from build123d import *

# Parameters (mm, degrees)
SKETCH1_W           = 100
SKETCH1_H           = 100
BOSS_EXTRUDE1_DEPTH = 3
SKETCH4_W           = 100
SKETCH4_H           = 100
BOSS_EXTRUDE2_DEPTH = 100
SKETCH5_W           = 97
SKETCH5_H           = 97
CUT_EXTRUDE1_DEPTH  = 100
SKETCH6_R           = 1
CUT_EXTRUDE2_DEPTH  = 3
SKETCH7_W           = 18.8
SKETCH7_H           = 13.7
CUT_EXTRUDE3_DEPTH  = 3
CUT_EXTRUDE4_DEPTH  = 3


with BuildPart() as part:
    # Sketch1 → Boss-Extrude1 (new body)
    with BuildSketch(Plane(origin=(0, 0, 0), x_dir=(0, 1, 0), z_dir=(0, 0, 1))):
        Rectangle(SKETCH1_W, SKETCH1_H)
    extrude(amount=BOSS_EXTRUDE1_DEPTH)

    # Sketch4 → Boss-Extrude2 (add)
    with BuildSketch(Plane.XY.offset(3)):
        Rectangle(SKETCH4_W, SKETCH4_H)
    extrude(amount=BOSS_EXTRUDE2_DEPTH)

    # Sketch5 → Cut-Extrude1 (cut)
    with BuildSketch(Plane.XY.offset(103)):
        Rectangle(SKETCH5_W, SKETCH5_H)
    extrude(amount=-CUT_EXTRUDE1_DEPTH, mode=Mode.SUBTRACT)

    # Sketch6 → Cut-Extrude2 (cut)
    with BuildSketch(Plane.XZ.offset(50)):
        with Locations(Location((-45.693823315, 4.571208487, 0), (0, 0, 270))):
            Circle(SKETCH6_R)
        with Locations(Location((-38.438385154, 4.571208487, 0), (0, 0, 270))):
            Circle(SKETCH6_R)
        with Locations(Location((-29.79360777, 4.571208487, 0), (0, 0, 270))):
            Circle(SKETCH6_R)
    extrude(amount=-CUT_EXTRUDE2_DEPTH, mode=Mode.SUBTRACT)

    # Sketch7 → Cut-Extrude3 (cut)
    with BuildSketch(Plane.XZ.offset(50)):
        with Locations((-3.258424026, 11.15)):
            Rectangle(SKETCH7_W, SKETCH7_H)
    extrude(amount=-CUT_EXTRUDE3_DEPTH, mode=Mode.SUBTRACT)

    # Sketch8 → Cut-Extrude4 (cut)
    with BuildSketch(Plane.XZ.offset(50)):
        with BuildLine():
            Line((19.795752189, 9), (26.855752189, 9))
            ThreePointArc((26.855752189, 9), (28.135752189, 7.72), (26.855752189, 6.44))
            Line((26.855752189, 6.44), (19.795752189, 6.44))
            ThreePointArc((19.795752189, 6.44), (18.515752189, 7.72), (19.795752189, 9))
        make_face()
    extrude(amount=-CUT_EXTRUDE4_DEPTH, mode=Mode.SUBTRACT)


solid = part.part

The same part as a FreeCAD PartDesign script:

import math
import FreeCAD as App
import Part
import Sketcher

V = App.Vector


def add_polygon(sketch, points):
    """Adds a closed chain of lines whose ends are joined by coincident constraints."""
    first, n = sketch.GeometryCount, len(points)
    for a, b in zip(points, points[1:] + points[:1]):
        sketch.addGeometry(Part.LineSegment(App.Vector(*a, 0), App.Vector(*b, 0)), False)
    for i in range(n):
        sketch.addConstraint(Sketcher.Constraint("Coincident", first + i, 2, first + (i + 1) % n, 1))

doc = App.newDocument("Part")
params = doc.addObject("Spreadsheet::Sheet", "Params")
for row, (alias, value) in enumerate([
    ("sketch1_width", "100 mm"),
    ("pad1_length", "3 mm"),
    ("sketch2_width", "100 mm"),
    ("pad2_length", "100 mm"),
    ("sketch3_width", "97 mm"),
    ("pocket1_length", "100 mm"),
    ("sketch4_diameter", "2 mm"),
    ("pocket2_length", "3 mm"),
    ("sketch5_width", "18.8 mm"),
    ("sketch5_height", "13.7 mm"),
    ("pocket3_length", "3 mm"),
    ("sketch6_radius", "1.28 mm"),
    ("sketch6_width", "7.06 mm"),
    ("pocket4_length", "3 mm"),
], start=1):
    params.set(f"A{row}", alias)
    params.set(f"B{row}", "=" + value)
    params.setAlias(f"B{row}", alias)

body = doc.addObject("PartDesign::Body", "Body")

sketch1 = body.newObject("Sketcher::SketchObject", "Sketch")
sketch1.AttachmentSupport = (doc.getObject("XY_Plane"), [""])
sketch1.MapMode = "FlatFace"
add_polygon(sketch1, [(-50, -50), (50, -50), (50, 50), (-50, 50)])
sketch1.addConstraint(Sketcher.Constraint("Horizontal", 0))
sketch1.addConstraint(Sketcher.Constraint("Vertical", 1))
sketch1.addConstraint(Sketcher.Constraint("Horizontal", 2))
sketch1.addConstraint(Sketcher.Constraint("Vertical", 3))
sketch1.addConstraint(Sketcher.Constraint("Symmetric", 0, 2, 2, 2, -1, 1))
sketch1.addConstraint(Sketcher.Constraint("Equal", 2, 1))
sketch1.addConstraint(Sketcher.Constraint("DistanceX", 0, 1, 0, 2, 100.0))
sketch1.setExpression("Constraints[10]", "Params.sketch1_width")
pad1 = body.newObject("PartDesign::Pad", "Pad")
pad1.Profile = sketch1
pad1.setExpression("Length", "Params.pad1_length")

sketch2 = body.newObject("Sketcher::SketchObject", "Sketch001")
sketch2.AttachmentSupport = (doc.getObject("XY_Plane"), [""])
sketch2.MapMode = "FlatFace"
sketch2.AttachmentOffset = App.Placement(V(0, 0, 3), App.Rotation())
add_polygon(sketch2, [(-50, 50), (-50, -50), (50, -50), (50, 50)])
sketch2.addConstraint(Sketcher.Constraint("Vertical", 0))
sketch2.addConstraint(Sketcher.Constraint("Horizontal", 1))
sketch2.addConstraint(Sketcher.Constraint("Vertical", 2))
sketch2.addConstraint(Sketcher.Constraint("Horizontal", 3))
sketch2.addConstraint(Sketcher.Constraint("Symmetric", 0, 2, 2, 2, -1, 1))
sketch2.addConstraint(Sketcher.Constraint("Equal", 3, 0))
sketch2.addConstraint(Sketcher.Constraint("DistanceX", 1, 1, 1, 2, 100.0))
sketch2.setExpression("Constraints[10]", "Params.sketch2_width")
pad2 = body.newObject("PartDesign::Pad", "Pad001")
pad2.Profile = sketch2
pad2.setExpression("Length", "Params.pad2_length")

sketch3 = body.newObject("Sketcher::SketchObject", "Sketch002")
sketch3.AttachmentSupport = (doc.getObject("XY_Plane"), [""])
sketch3.MapMode = "FlatFace"
sketch3.AttachmentOffset = App.Placement(V(0, 0, 103), App.Rotation())
add_polygon(sketch3, [(-48, 48), (-48, -48), (48, -48), (48, 48)])
sketch3.addConstraint(Sketcher.Constraint("Vertical", 0))
sketch3.addConstraint(Sketcher.Constraint("Horizontal", 1))
sketch3.addConstraint(Sketcher.Constraint("Vertical", 2))
sketch3.addConstraint(Sketcher.Constraint("Horizontal", 3))
sketch3.addConstraint(Sketcher.Constraint("Symmetric", 0, 2, 2, 2, -1, 1))
sketch3.addConstraint(Sketcher.Constraint("Equal", 3, 0))
sketch3.addConstraint(Sketcher.Constraint("DistanceX", 1, 1, 1, 2, 97.0))
sketch3.setExpression("Constraints[10]", "Params.sketch3_width")
pocket1 = body.newObject("PartDesign::Pocket", "Pocket")
pocket1.Profile = sketch3
pocket1.setExpression("Length", "Params.pocket1_length")

sketch4 = body.newObject("Sketcher::SketchObject", "Sketch003")
sketch4.AttachmentSupport = (doc.getObject("XZ_Plane"), [""])
sketch4.MapMode = "FlatFace"
sketch4.AttachmentOffset = App.Placement(V(0, 0, 50), App.Rotation())
sketch4.addGeometry(Part.Circle(V(-45.7, 4.6, 0), V(0, 0, 1), 1), False)
sketch4.addGeometry(Part.Circle(V(-38.4, 4.6, 0), V(0, 0, 1), 1), False)
sketch4.addGeometry(Part.Circle(V(-29.8, 4.6, 0), V(0, 0, 1), 1), False)
sketch4.addConstraint(Sketcher.Constraint("Equal", 0, 1))
sketch4.addConstraint(Sketcher.Constraint("Equal", 1, 2))
sketch4.addConstraint(Sketcher.Constraint("Horizontal", 0, 3, 1, 3))
sketch4.addConstraint(Sketcher.Constraint("Horizontal", 1, 3, 2, 3))
sketch4.addConstraint(Sketcher.Constraint("Diameter", 0, 2.0))
sketch4.addConstraint(Sketcher.Constraint("DistanceY", -1, 1, 0, 3, 4.571208))
sketch4.addConstraint(Sketcher.Constraint("DistanceX", 0, 3, 1, 3, 7.255438))
sketch4.addConstraint(Sketcher.Constraint("DistanceX", 0, 3, -1, 1, 45.693823))
sketch4.addConstraint(Sketcher.Constraint("DistanceX", 2, 3, -1, 1, 29.793608))
sketch4.setExpression("Constraints[4]", "Params.sketch4_diameter")
pocket2 = body.newObject("PartDesign::Pocket", "Pocket001")
pocket2.Profile = sketch4
pocket2.setExpression("Length", "Params.pocket2_length")

sketch5 = body.newObject("Sketcher::SketchObject", "Sketch004")
sketch5.AttachmentSupport = (doc.getObject("XZ_Plane"), [""])
sketch5.MapMode = "FlatFace"
sketch5.AttachmentOffset = App.Placement(V(0, 0, 50), App.Rotation())
add_polygon(sketch5, [(-13, 18), (-13, 4), (6, 4), (6, 18)])
sketch5.addConstraint(Sketcher.Constraint("Vertical", 0))
sketch5.addConstraint(Sketcher.Constraint("Horizontal", 1))
sketch5.addConstraint(Sketcher.Constraint("Vertical", 2))
sketch5.addConstraint(Sketcher.Constraint("Horizontal", 3))
sketch5.addConstraint(Sketcher.Constraint("DistanceX", 1, 1, 1, 2, 18.8))
sketch5.addConstraint(Sketcher.Constraint("DistanceY", 0, 2, 0, 1, 13.7))
sketch5.addConstraint(Sketcher.Constraint("DistanceY", -1, 1, 2, 2, 18.0))
sketch5.addConstraint(Sketcher.Constraint("DistanceX", 0, 2, -1, 1, 12.658424))
sketch5.setExpression("Constraints[8]", "Params.sketch5_width")
sketch5.setExpression("Constraints[9]", "Params.sketch5_height")
pocket3 = body.newObject("PartDesign::Pocket", "Pocket002")
pocket3.Profile = sketch5
pocket3.setExpression("Length", "Params.pocket3_length")

sketch6 = body.newObject("Sketcher::SketchObject", "Sketch005")
sketch6.AttachmentSupport = (doc.getObject("XZ_Plane"), [""])
sketch6.MapMode = "FlatFace"
sketch6.AttachmentOffset = App.Placement(V(0, 0, 50), App.Rotation())
sketch6.addGeometry(Part.LineSegment(V(26.9, 9, 0), V(19.8, 9, 0)), False)
sketch6.addGeometry(Part.ArcOfCircle(Part.Circle(V(19.8, 7.7, 0), V(0, 0, 1), 1.3), math.radians(90), math.radians(270)), False)
sketch6.addGeometry(Part.LineSegment(V(19.8, 6.4, 0), V(26.9, 6.4, 0)), False)
sketch6.addGeometry(Part.ArcOfCircle(Part.Circle(V(26.9, 7.7, 0), V(0, 0, 1), 1.3), math.radians(-90), math.radians(90)), False)
sketch6.addConstraint(Sketcher.Constraint("Tangent", 0, 2, 1, 1))
sketch6.addConstraint(Sketcher.Constraint("Tangent", 1, 2, 2, 1))
sketch6.addConstraint(Sketcher.Constraint("Tangent", 2, 2, 3, 1))
sketch6.addConstraint(Sketcher.Constraint("Tangent", 3, 2, 0, 1))
sketch6.addConstraint(Sketcher.Constraint("Horizontal", 0))
sketch6.addConstraint(Sketcher.Constraint("Horizontal", 2))
sketch6.addConstraint(Sketcher.Constraint("Radius", 1, 1.28))
sketch6.addConstraint(Sketcher.Constraint("DistanceY", -1, 1, 0, 2, 9.0))
sketch6.addConstraint(Sketcher.Constraint("DistanceX", 0, 2, 0, 1, 7.06))
sketch6.addConstraint(Sketcher.Constraint("DistanceX", -1, 1, 1, 3, 19.795752))
sketch6.setExpression("Constraints[6]", "Params.sketch6_radius")
sketch6.setExpression("Constraints[8]", "Params.sketch6_width")
pocket4 = body.newObject("PartDesign::Pocket", "Pocket003")
pocket4.Profile = sketch6
pocket4.setExpression("Length", "Params.pocket4_length")

doc.recompute()
